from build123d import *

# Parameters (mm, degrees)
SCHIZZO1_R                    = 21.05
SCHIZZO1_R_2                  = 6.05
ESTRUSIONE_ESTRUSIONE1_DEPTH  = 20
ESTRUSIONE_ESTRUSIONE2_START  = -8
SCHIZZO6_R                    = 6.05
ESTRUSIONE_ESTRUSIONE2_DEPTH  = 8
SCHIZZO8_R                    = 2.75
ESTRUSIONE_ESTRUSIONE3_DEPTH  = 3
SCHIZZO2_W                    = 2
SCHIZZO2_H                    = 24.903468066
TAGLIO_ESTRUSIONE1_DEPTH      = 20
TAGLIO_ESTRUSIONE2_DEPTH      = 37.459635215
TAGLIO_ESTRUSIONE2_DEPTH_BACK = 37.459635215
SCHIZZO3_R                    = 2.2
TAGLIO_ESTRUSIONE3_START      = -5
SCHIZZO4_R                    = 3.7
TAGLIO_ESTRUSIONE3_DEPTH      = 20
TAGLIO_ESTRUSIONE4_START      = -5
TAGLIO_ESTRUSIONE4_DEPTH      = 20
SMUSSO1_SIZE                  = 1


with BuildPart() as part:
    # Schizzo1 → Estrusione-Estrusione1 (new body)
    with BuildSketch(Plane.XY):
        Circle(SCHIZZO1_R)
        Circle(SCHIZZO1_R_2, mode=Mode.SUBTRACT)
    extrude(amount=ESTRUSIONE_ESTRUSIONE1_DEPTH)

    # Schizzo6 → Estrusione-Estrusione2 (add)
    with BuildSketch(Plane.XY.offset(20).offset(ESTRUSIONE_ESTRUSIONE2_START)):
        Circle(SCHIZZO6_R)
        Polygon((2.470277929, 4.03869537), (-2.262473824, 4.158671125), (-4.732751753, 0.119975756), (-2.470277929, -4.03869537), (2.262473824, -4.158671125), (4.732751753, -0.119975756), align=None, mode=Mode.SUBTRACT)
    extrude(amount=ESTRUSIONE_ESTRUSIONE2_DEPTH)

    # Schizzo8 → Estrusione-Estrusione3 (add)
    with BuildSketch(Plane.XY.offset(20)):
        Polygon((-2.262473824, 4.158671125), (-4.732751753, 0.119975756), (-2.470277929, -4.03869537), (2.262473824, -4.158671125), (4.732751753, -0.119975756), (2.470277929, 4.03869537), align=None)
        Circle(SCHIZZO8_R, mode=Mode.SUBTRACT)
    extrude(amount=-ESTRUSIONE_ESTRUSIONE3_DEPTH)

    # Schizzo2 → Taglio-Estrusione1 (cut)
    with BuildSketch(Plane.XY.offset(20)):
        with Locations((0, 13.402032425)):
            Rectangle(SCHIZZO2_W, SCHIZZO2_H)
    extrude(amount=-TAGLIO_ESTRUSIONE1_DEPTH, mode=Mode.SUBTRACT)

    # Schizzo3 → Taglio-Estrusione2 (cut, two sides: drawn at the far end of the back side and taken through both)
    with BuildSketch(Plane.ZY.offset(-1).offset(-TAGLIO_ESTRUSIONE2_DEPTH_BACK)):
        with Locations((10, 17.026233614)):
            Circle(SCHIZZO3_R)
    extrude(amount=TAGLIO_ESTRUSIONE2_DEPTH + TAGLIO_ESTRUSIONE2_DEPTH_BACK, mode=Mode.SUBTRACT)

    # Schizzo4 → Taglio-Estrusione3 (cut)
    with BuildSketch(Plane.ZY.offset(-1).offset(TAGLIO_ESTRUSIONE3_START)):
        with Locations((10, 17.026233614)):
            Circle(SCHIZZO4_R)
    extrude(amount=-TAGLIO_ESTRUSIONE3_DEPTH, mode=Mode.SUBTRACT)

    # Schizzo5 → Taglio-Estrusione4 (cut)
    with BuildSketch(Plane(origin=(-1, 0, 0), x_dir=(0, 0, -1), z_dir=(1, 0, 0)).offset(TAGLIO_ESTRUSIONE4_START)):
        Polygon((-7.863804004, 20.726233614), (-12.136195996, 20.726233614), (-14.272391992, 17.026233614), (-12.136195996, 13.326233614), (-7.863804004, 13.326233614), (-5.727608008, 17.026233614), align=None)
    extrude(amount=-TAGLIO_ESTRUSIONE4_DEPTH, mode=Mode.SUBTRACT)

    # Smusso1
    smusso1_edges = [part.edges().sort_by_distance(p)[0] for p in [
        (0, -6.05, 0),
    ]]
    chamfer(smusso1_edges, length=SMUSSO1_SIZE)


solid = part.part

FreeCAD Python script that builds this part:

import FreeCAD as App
import Part
import Sketcher
from FreeCAD import Vector
Q = App.Units.Quantity


def edges_at(feature, points):
    """Names of the edges that pass closest to the given points."""
    edges = feature.Shape.Edges
    near = lambda p: min(range(len(edges)), key=lambda i: edges[i].distToShape(Part.Vertex(*p))[0])
    return sorted({f"Edge{near(p) + 1}" for p in points})


def add_polygon(sketch, points):
    """Adds a closed chain of lines whose ends are joined by coincident constraints."""
    first, n = sketch.GeometryCount, len(points)
    for a, b in zip(points, points[1:] + points[:1]):
        sketch.addGeometry(Part.LineSegment(App.Vector(*a, 0), App.Vector(*b, 0)), False)
    for i in range(n):
        sketch.addConstraint(Sketcher.Constraint("Coincident", first + i, 2, first + (i + 1) % n, 1))

doc = App.newDocument("Part")
body = doc.addObject("PartDesign::Body", "Body")

# Sketch on XY plane
sketch1 = body.newObject("Sketcher::SketchObject", "Sketch")
sketch1.AttachmentSupport = (doc.getObject("XY_Plane"), [""])
sketch1.MapMode = "FlatFace"
sketch1.addGeometry([
    Part.Circle(Vector(0, 0, 0), Vector(0, 0, 1), 21.05),
    Part.Circle(Vector(0, 0, 0), Vector(0, 0, 1), 6.05),
], False)
sketch1.addConstraint([
    Sketcher.Constraint("Coincident", 0, 3, -1, 1),
    Sketcher.Constraint("Coincident", 1, 3, -1, 1),
    Sketcher.Constraint("Diameter", 0, Q("42.1 mm")),
    Sketcher.Constraint("Diameter", 1, Q("12.1 mm")),
])
pad1 = body.newObject("PartDesign::Pad", "Pad")
pad1.Profile = sketch1
pad1.Length = 20

# Sketch on XY plane
sketch2 = body.newObject("Sketcher::SketchObject", "Sketch001")
sketch2.AttachmentSupport = (doc.getObject("XY_Plane"), [""])
sketch2.MapMode = "FlatFace"
sketch2.AttachmentOffset = App.Placement(Vector(0, 0, 12), App.Rotation())
sketch2.addGeometry(Part.Circle(Vector(0, 0, 0), Vector(0, 0, 1), 6.05), False)  # 0
add_polygon(sketch2, [(-2.262474, 4.158671), (2.470278, 4.038695), (4.732752, -0.119976), (2.262474, -4.158671), (-2.470278, -4.038695), (-4.732752, 0.119976)])  # lines 1-6
sketch2.addConstraint([
    Sketcher.Constraint("Coincident", 0, 3, -1, 1),
    Sketcher.Constraint("Symmetric", 1, 2, 4, 2, -1, 1),
    Sketcher.Constraint("Symmetric", 2, 2, 5, 2, -1, 1),
    Sketcher.Constraint("Symmetric", 3, 2, 6, 2, -1, 1),
    Sketcher.Constraint("Equal", 1, 2),
    Sketcher.Constraint("Equal", 2, 3),
    Sketcher.Constraint("Diameter", 0, Q("12.1 mm")),
    Sketcher.Constraint("DistanceX", -1, 1, 2, 2, Q("4.732752 mm")),
    Sketcher.Constraint("DistanceY", 3, 2, -1, 1, Q("4.158671 mm")),
    Sketcher.Constraint("DistanceY", 2, 2, 1, 2, Q("4.158671 mm")),
    Sketcher.Constraint("DistanceX", 4, 2, 3, 2, Q("4.732752 mm")),
])
pad2 = body.newObject("PartDesign::Pad", "Pad001")
pad2.Profile = sketch2
pad2.Length = 8

# Sketch on XY plane
sketch3 = body.newObject("Sketcher::SketchObject", "Sketch002")
sketch3.AttachmentSupport = (doc.getObject("XY_Plane"), [""])
sketch3.MapMode = "FlatFace"
sketch3.AttachmentOffset = App.Placement(Vector(0, 0, 20), App.Rotation())
add_polygon(sketch3, [(-2.262474, 4.158671), (-4.732752, 0.119976), (-2.470278, -4.038695), (2.262474, -4.158671), (4.732752, -0.119976), (2.470278, 4.038695)])  # lines 0-5
sketch3.addGeometry(Part.Circle(Vector(0, 0, 0), Vector(0, 0, 1), 2.75), False)  # 6
sketch3.addConstraint([
    Sketcher.Constraint("Coincident", 6, 3, -1, 1),
    Sketcher.Constraint("Symmetric", 0, 2, 3, 2, -1, 1),
    Sketcher.Constraint("Symmetric", 1, 2, 4, 2, -1, 1),
    Sketcher.Constraint("Symmetric", 2, 2, 5, 2, -1, 1),
    Sketcher.Constraint("Equal", 0, 1),
    Sketcher.Constraint("Equal", 1, 2),
    Sketcher.Constraint("Diameter", 6, Q("5.5 mm")),
    Sketcher.Constraint("DistanceX", 0, 2, -1, 1, Q("4.732752 mm")),
    Sketcher.Constraint("DistanceY", 2, 2, -1, 1, Q("4.158671 mm")),
    Sketcher.Constraint("DistanceY", 1, 2, 0, 2, Q("4.158671 mm")),
    Sketcher.Constraint("DistanceX", 1, 2, 2, 2, Q("4.732752 mm")),
])
pad3 = body.newObject("PartDesign::Pad", "Pad002")
pad3.Profile = sketch3
pad3.Length = 3
pad3.Reversed = True

# Sketch on XY plane
sketch4 = body.newObject("Sketcher::SketchObject", "Sketch003")
sketch4.AttachmentSupport = (doc.getObject("XY_Plane"), [""])
sketch4.MapMode = "FlatFace"
sketch4.AttachmentOffset = App.Placement(Vector(0, 0, 20), App.Rotation())
add_polygon(sketch4, [(-1, 25.853766), (-1, 0.950298), (1, 0.950298), (1, 25.853766)])  # lines 0-3
sketch4.addConstraint([
    Sketcher.Constraint("Vertical", 0),
    Sketcher.Constraint("Horizontal", 1),
    Sketcher.Constraint("Vertical", 2),
    Sketcher.Constraint("Horizontal", 3),
    Sketcher.Constraint("DistanceX", 1, 1, 1, 2, Q("2 mm")),
    Sketcher.Constraint("DistanceX", 0, 2, -1, 1, Q("1 mm")),
    Sketcher.Constraint("DistanceY", 0, 2, 0, 1, Q("24.903468 mm")),
    Sketcher.Constraint("DistanceY", -1, 1, 0, 2, Q("0.950298 mm")),
])
pocket1 = body.newObject("PartDesign::Pocket", "Pocket")
pocket1.Profile = sketch4
pocket1.Length = 20

# Sketch on YZ plane
sketch5 = body.newObject("Sketcher::SketchObject", "Sketch004")
sketch5.AttachmentSupport = (doc.getObject("YZ_Plane"), [""])
sketch5.MapMode = "FlatFace"
sketch5.AttachmentOffset = App.Placement(Vector(0, 0, 1), App.Rotation())
sketch5.addGeometry(Part.Circle(Vector(17.026234, 10, 0), Vector(0, 0, 1), 2.2), False)
sketch5.addConstraint([
    Sketcher.Constraint("Diameter", 0, Q("4.4 mm")),
    Sketcher.Constraint("DistanceY", -1, 1, 0, 3, Q("10 mm")),
    Sketcher.Constraint("DistanceX", -1, 1, 0, 3, Q("17.026234 mm")),
])
pocket2 = body.newObject("PartDesign::Pocket", "Pocket001")
pocket2.Profile = sketch5
pocket2.Type = "ThroughAll"
pocket2.Midplane = True

# Sketch on YZ plane
sketch6 = body.newObject("Sketcher::SketchObject", "Sketch005")
sketch6.AttachmentSupport = (doc.getObject("YZ_Plane"), [""])
sketch6.MapMode = "FlatFace"
sketch6.AttachmentOffset = App.Placement(Vector(0, 0, 6), App.Rotation())
sketch6.addGeometry(Part.Circle(Vector(17.026234, 10, 0), Vector(0, 0, 1), 3.7), False)
sketch6.addConstraint([
    Sketcher.Constraint("Diameter", 0, Q("7.4 mm")),
    Sketcher.Constraint("DistanceY", -1, 1, 0, 3, Q("10 mm")),
    Sketcher.Constraint("DistanceX", -1, 1, 0, 3, Q("17.026234 mm")),
])
pocket3 = body.newObject("PartDesign::Pocket", "Pocket002")
pocket3.Profile = sketch6
pocket3.Length = 20
pocket3.Reversed = True

# Sketch on YZ plane
sketch7 = body.newObject("Sketcher::SketchObject", "Sketch006")
sketch7.AttachmentSupport = (doc.getObject("YZ_Plane"), [""])
sketch7.MapMode = "FlatFace"
sketch7.AttachmentOffset = App.Placement(Vector(0, 0, -6), App.Rotation())
add_polygon(sketch7, [(20.726234, 7.863804), (20.726234, 12.136196), (17.026234, 14.272392), (13.326234, 12.136196), (13.326234, 7.863804), (17.026234, 5.727608)])  # lines 0-5
sketch7.addConstraint([
    Sketcher.Constraint("Vertical", 0),
    Sketcher.Constraint("Vertical", 3),
    Sketcher.Constraint("Parallel", 1, 4),
    Sketcher.Constraint("Parallel", 2, 5),
    Sketcher.Constraint("Horizontal", 0, 2, 2, 2),
    Sketcher.Constraint("Horizontal", 3, 2, 5, 2),
    Sketcher.Constraint("Vertical", 1, 2, 4, 2),
    Sketcher.Constraint("Angle", 1, Q("150 deg")),
    Sketcher.Constraint("DistanceX", 1, 2, 0, 2, Q("3.7 mm")),
    Sketcher.Constraint("DistanceY", 0, 1, 0, 2, Q("4.272392 mm")),
    Sketcher.Constraint("DistanceY", -1, 1, 1, 2, Q("14.272392 mm")),
    Sketcher.Constraint("DistanceX", -1, 1, 0, 2, Q("20.726234 mm")),
])
pocket4 = body.newObject("PartDesign::Pocket", "Pocket003")
pocket4.Profile = sketch7
pocket4.Length = 20
doc.recompute()

chamfer = body.newObject("PartDesign::Chamfer", "Chamfer")
chamfer.Base = (pocket4, edges_at(pocket4, [(0, -6.05, 0)]))
chamfer.Size = 1

doc.recompute()
